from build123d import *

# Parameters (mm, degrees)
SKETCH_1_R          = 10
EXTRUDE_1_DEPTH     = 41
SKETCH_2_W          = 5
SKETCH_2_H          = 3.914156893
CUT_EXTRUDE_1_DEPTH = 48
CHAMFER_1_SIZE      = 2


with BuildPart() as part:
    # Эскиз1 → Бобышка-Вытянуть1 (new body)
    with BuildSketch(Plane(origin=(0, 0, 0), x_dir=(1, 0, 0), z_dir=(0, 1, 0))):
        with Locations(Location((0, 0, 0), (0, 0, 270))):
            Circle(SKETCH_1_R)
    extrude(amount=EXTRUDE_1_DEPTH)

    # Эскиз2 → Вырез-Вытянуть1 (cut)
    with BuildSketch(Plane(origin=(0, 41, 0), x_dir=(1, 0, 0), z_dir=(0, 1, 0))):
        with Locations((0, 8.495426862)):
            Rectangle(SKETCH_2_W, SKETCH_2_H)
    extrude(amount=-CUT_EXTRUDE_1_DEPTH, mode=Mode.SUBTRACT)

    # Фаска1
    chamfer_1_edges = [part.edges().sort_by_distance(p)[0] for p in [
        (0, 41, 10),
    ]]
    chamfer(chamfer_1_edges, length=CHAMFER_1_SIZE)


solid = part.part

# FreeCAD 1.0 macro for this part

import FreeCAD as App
import Part
import Sketcher

V = App.Vector


def edges_at(feature, points):
    """Names of the edges that pass closest to the given points."""
    edges = feature.Shape.Edges
    near = lambda p: min(range(len(edges)), key=lambda i: edges[i].distToShape(Part.Vertex(*p))[0])
    return sorted({f"Edge{near(p) + 1}" for p in points})


def add_polygon(sketch, points):
    """Adds a closed chain of lines whose ends are joined by coincident constraints."""
    first, n = sketch.GeometryCount, len(points)
    for a, b in zip(points, points[1:] + points[:1]):
        sketch.addGeometry(Part.LineSegment(App.Vector(*a, 0), App.Vector(*b, 0)), False)
    for i in range(n):
        sketch.addConstraint(Sketcher.Constraint("Coincident", first + i, 2, first + (i + 1) % n, 1))

doc = App.newDocument("Part")
body = doc.addObject("PartDesign::Body", "Body")

# Sketch on XZ plane
sketch1 = body.newObject("Sketcher::SketchObject", "Sketch")
sketch1.AttachmentSupport = (doc.getObject("XZ_Plane"), [""])
sketch1.MapMode = "FlatFace"
sketch1.addGeometry(Part.Circle(V(0, 0, 0), V(0, 0, 1), 10), False)
sketch1.addConstraint(Sketcher.Constraint("Coincident", 0, 3, -1, 1))
sketch1.addConstraint(Sketcher.Constraint("Diameter", 0, 20.0))
pad1 = body.newObject("PartDesign::Pad", "Pad")
pad1.Profile = sketch1
pad1.Length = 41
pad1.Reversed = True

# Sketch on XZ plane
sketch2 = body.newObject("Sketcher::SketchObject", "Sketch001")
sketch2.AttachmentSupport = (doc.getObject("XZ_Plane"), [""])
sketch2.MapMode = "FlatFace"
sketch2.AttachmentOffset = App.Placement(V(0, 0, -41), App.Rotation())
add_polygon(sketch2, [(-2.5, -10.452505), (-2.5, -6.538348), (2.5, -6.538348), (2.5, -10.452505)])  # lines 0-3
sketch2.addConstraint(Sketcher.Constraint("Vertical", 0))
sketch2.addConstraint(Sketcher.Constraint("Horizontal", 1))
sketch2.addConstraint(Sketcher.Constraint("Vertical", 2))
sketch2.addConstraint(Sketcher.Constraint("Horizontal", 3))
sketch2.addConstraint(Sketcher.Constraint("DistanceX", 1, 1, 1, 2, 5.0))
sketch2.addConstraint(Sketcher.Constraint("DistanceX", 0, 2, -1, 1, 2.5))
sketch2.addConstraint(Sketcher.Constraint("DistanceY", 0, 1, 0, 2, 3.914157))
sketch2.addConstraint(Sketcher.Constraint("DistanceY", 0, 2, -1, 1, 6.538348))
pocket1 = body.newObject("PartDesign::Pocket", "Pocket")
pocket1.Profile = sketch2
pocket1.Length = 48
pocket1.Reversed = True
doc.recompute()

chamfer = body.newObject("PartDesign::Chamfer", "Chamfer")
chamfer.Base = (pocket1, edges_at(pocket1, [(0, 41, 10)]))
chamfer.Size = 2

doc.recompute()
